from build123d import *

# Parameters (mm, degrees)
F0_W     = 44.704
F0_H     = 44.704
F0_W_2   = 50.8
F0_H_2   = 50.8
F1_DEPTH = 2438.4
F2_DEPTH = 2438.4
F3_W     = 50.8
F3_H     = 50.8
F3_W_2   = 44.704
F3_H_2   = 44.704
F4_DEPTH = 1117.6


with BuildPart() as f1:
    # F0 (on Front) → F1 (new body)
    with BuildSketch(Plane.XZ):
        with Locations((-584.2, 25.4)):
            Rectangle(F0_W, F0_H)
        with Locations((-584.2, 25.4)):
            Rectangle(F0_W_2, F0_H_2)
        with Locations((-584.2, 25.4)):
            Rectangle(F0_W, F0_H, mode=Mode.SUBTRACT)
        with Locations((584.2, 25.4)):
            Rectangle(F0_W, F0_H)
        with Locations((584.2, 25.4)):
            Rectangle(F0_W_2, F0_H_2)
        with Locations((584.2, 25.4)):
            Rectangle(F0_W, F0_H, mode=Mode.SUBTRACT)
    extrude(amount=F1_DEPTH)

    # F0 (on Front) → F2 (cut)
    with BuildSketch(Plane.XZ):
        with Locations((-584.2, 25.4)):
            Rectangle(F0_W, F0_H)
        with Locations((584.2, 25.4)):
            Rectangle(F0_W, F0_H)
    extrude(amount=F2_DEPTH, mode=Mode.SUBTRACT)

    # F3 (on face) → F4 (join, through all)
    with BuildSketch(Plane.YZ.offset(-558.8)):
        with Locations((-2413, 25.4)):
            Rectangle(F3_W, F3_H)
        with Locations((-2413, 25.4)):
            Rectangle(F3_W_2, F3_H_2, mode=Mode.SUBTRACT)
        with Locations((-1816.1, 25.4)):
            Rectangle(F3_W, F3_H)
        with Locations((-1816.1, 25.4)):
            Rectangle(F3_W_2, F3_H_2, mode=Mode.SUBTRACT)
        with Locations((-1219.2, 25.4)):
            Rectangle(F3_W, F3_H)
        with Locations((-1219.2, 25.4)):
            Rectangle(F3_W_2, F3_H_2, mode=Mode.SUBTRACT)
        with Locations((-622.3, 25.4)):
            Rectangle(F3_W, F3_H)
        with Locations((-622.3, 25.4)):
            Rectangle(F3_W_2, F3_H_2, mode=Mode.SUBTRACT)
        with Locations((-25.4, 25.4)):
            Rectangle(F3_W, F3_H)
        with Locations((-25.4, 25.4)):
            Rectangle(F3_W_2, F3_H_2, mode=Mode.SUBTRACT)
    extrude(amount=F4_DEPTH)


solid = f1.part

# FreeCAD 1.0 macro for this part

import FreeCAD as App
import Part
import Sketcher
Q = App.Units.Quantity


def add_polygon(sketch, points):
    """Adds a closed chain of lines whose ends are joined by coincident constraints."""
    first, n = sketch.GeometryCount, len(points)
    for a, b in zip(points, points[1:] + points[:1]):
        sketch.addGeometry(Part.LineSegment(App.Vector(*a, 0), App.Vector(*b, 0)), False)
    for i in range(n):
        sketch.addConstraint(Sketcher.Constraint("Coincident", first + i, 2, first + (i + 1) % n, 1))

doc = App.newDocument("Part")
body = doc.addObject("PartDesign::Body", "Body")
body.AllowCompound = True

sketch1 = doc.addObject("Sketcher::SketchObject", "Sketch")
body.addObject(sketch1)
sketch1.AttachmentSupport = (doc.XZ_Plane, [""])
sketch1.MapMode = "FlatFace"
add_polygon(sketch1, [(-610, 51), (-610, 0), (-559, 0), (-559, 51)])
add_polygon(sketch1, [(-562, 3), (-607, 3), (-607, 48), (-562, 48)])
add_polygon(sketch1, [(559, 51), (559, 0), (610, 0), (610, 51)])
add_polygon(sketch1, [(607, 3), (562, 3), (562, 48), (607, 48)])
sketch1.addConstraint([
    Sketcher.Constraint("Vertical", 0),
    Sketcher.Constraint("Horizontal", 1),
    Sketcher.Constraint("Vertical", 2),
    Sketcher.Constraint("Horizontal", 3),
    Sketcher.Constraint("Horizontal", 4),
    Sketcher.Constraint("Vertical", 5),
    Sketcher.Constraint("Horizontal", 6),
    Sketcher.Constraint("Vertical", 7),
    Sketcher.Constraint("Vertical", 8),
    Sketcher.Constraint("Horizontal", 9),
    Sketcher.Constraint("Vertical", 10),
    Sketcher.Constraint("Horizontal", 11),
    Sketcher.Constraint("Horizontal", 12),
    Sketcher.Constraint("Vertical", 13),
    Sketcher.Constraint("Horizontal", 14),
    Sketcher.Constraint("Vertical", 15),
    Sketcher.Constraint("Symmetric", 1, 2, 8, 2, -1, 1),
    Sketcher.Constraint("Symmetric", 0, 2, 9, 2, -2),
    Sketcher.Constraint("Symmetric", 7, 2, 12, 2, -2),
    Sketcher.Constraint("Symmetric", 5, 2, 14, 2, -2),
    Sketcher.Constraint("Horizontal", 3, 2, 10, 2),
    Sketcher.Constraint("Equal", 11, 0),
    Sketcher.Constraint("Equal", 14, 5),
    Sketcher.Constraint("DistanceX", 1, 1, 1, 2, Q("2 in")),
    Sketcher.Constraint("DistanceX", 0, 2, -1, 1, Q("24 in")),
    Sketcher.Constraint("DistanceX", 4, 2, 4, 1, Q("1.76 in")),
    Sketcher.Constraint("DistanceX", 4, 2, -1, 1, Q("23.88 in")),
    Sketcher.Constraint("DistanceY", -1, 1, 4, 2, Q("0.12 in")),
])
pad1 = doc.addObject("PartDesign::Pad", "Pad")
body.addObject(pad1)
pad1.Profile = sketch1
pad1.Length = Q("96 in")

sketch2 = doc.addObject("Sketcher::SketchObject", "Sketch001")
body.addObject(sketch2)
sketch2.AttachmentSupport = (doc.XZ_Plane, [""])
sketch2.MapMode = "FlatFace"
add_polygon(sketch2, [(-607, 48), (-607, 3), (-562, 3), (-562, 48)])
add_polygon(sketch2, [(562, 48), (562, 3), (607, 3), (607, 48)])
sketch2.addConstraint([
    Sketcher.Constraint("Vertical", 0),
    Sketcher.Constraint("Horizontal", 1),
    Sketcher.Constraint("Vertical", 2),
    Sketcher.Constraint("Horizontal", 3),
    Sketcher.Constraint("Vertical", 4),
    Sketcher.Constraint("Horizontal", 5),
    Sketcher.Constraint("Vertical", 6),
    Sketcher.Constraint("Horizontal", 7),
    Sketcher.Constraint("Symmetric", 1, 2, 4, 2, -2),
    Sketcher.Constraint("Symmetric", 3, 2, 6, 2, -2),
    Sketcher.Constraint("Equal", 7, 0),
    Sketcher.Constraint("DistanceX", 0, 2, 4, 2, Q("46 in")),
    Sketcher.Constraint("DistanceX", 1, 1, 1, 2, Q("1.76 in")),
    Sketcher.Constraint("DistanceY", -1, 1, 0, 2, Q("0.12 in")),
])
pocket1 = doc.addObject("PartDesign::Pocket", "Pocket")
body.addObject(pocket1)
pocket1.Profile = sketch2
pocket1.Length = Q("96 in")
pocket1.Reversed = True

sketch3 = doc.addObject("Sketcher::SketchObject", "Sketch002")
body.addObject(sketch3)
sketch3.AttachmentSupport = (doc.YZ_Plane, [""])
sketch3.MapMode = "FlatFace"
sketch3.AttachmentOffset = App.Placement(App.Vector(0, 0, -22 * 25.4), App.Rotation())
add_polygon(sketch3, [(-2438, 51), (-2438, 0), (-2388, 0), (-2388, 51)])
add_polygon(sketch3, [(-2391, 3), (-2435, 3), (-2435, 48), (-2391, 48)])
add_polygon(sketch3, [(-1842, 51), (-1842, 0), (-1791, 0), (-1791, 51)])
add_polygon(sketch3, [(-1794, 3), (-1838, 3), (-1838, 48), (-1794, 48)])
add_polygon(sketch3, [(-1245, 51), (-1245, 0), (-1194, 0), (-1194, 51)])
add_polygon(sketch3, [(-1197, 3), (-1242, 3), (-1242, 48), (-1197, 48)])
add_polygon(sketch3, [(-648, 51), (-648, 0), (-597, 0), (-597, 51)])
add_polygon(sketch3, [(-600, 3), (-645, 3), (-645, 48), (-600, 48)])
add_polygon(sketch3, [(-51, 51), (-51, 0), (0, 0), (0, 51)])
add_polygon(sketch3, [(-3, 3), (-48, 3), (-48, 48), (-3, 48)])
sketch3.addConstraint([
    Sketcher.Constraint("Vertical", 0),
    Sketcher.Constraint("Horizontal", 1),
    Sketcher.Constraint("Vertical", 2),
    Sketcher.Constraint("Horizontal", 3),
    Sketcher.Constraint("Horizontal", 4),
    Sketcher.Constraint("Vertical", 5),
    Sketcher.Constraint("Horizontal", 6),
    Sketcher.Constraint("Vertical", 7),
    Sketcher.Constraint("Vertical", 8),
    Sketcher.Constraint("Horizontal", 9),
    Sketcher.Constraint("Vertical", 10),
    Sketcher.Constraint("Horizontal", 11),
    Sketcher.Constraint("Horizontal", 12),
    Sketcher.Constraint("Vertical", 13),
    Sketcher.Constraint("Horizontal", 14),
    Sketcher.Constraint("Vertical", 15),
    Sketcher.Constraint("Vertical", 16),
    Sketcher.Constraint("Horizontal", 17),
    Sketcher.Constraint("Vertical", 18),
    Sketcher.Constraint("Horizontal", 19),
    Sketcher.Constraint("Horizontal", 20),
    Sketcher.Constraint("Vertical", 21),
    Sketcher.Constraint("Horizontal", 22),
    Sketcher.Constraint("Vertical", 23),
    Sketcher.Constraint("Vertical", 24),
    Sketcher.Constraint("Horizontal", 25),
    Sketcher.Constraint("Vertical", 26),
    Sketcher.Constraint("Horizontal", 27),
    Sketcher.Constraint("Horizontal", 28),
    Sketcher.Constraint("Vertical", 29),
    Sketcher.Constraint("Horizontal", 30),
    Sketcher.Constraint("Vertical", 31),
    Sketcher.Constraint("Vertical", 32),
    Sketcher.Constraint("Horizontal", 33),
    Sketcher.Constraint("Vertical", 34),
    Sketcher.Constraint("Horizontal", 35),
    Sketcher.Constraint("Horizontal", 36),
    Sketcher.Constraint("Vertical", 37),
    Sketcher.Constraint("Horizontal", 38),
    Sketcher.Constraint("Vertical", 39),
    Sketcher.Constraint("Coincident", 33, 2, -1, 1),
    Sketcher.Constraint("PointOnObject", 0, 2, -1),
    Sketcher.Constraint("PointOnObject", 8, 2, -1),
    Sketcher.Constraint("PointOnObject", 16, 2, -1),
    Sketcher.Constraint("PointOnObject", 24, 2, -1),
    Sketcher.Constraint("Horizontal", 3, 2, 10, 2),
    Sketcher.Constraint("Horizontal", 7, 2, 12, 2),
    Sketcher.Constraint("Horizontal", 6, 2, 13, 2),
    Sketcher.Constraint("Horizontal", 11, 2, 18, 2),
    Sketcher.Constraint("Horizontal", 15, 2, 20, 2),
    Sketcher.Constraint("Horizontal", 14, 2, 21, 2),
    Sketcher.Constraint("Horizontal", 19, 2, 26, 2),
    Sketcher.Constraint("Horizontal", 23, 2, 28, 2),
    Sketcher.Constraint("Horizontal", 22, 2, 29, 2),
    Sketcher.Constraint("Horizontal", 27, 2, 34, 2),
    Sketcher.Constraint("Horizontal", 31, 2, 36, 2),
    Sketcher.Constraint("Horizontal", 30, 2, 37, 2),
    Sketcher.Constraint("Equal", 3, 9),
    Sketcher.Constraint("Equal", 6, 12),
    Sketcher.Constraint("Equal", 11, 17),
    Sketcher.Constraint("Equal", 14, 20),
    Sketcher.Constraint("Equal", 19, 25),
    Sketcher.Constraint("Equal", 22, 28),
    Sketcher.Constraint("Equal", 27, 33),
    Sketcher.Constraint("Equal", 30, 36),
    Sketcher.Constraint("Equal", 35, 0),
    Sketcher.Constraint("Equal", 38, 5),
    Sketcher.Constraint("DistanceX", 1, 1, 1, 2, Q("2 in")),
    Sketcher.Constraint("DistanceX", 0, 2, -1, 1, Q("96 in")),
    Sketcher.Constraint("DistanceX", 16, 2, -1, 1, Q("49 in")),
    Sketcher.Constraint("DistanceX", 4, 2, 4, 1, Q("1.76 in")),
    Sketcher.Constraint("DistanceX", 8, 2, -1, 1, Q("72.5 in")),
    Sketcher.Constraint("DistanceX", 24, 2, -1, 1, Q("25.5 in")),
    Sketcher.Constraint("DistanceX", 4, 2, -1, 1, Q("95.88 in")),
    Sketcher.Constraint("DistanceY", -1, 1, 4, 2, Q("0.12 in")),
    Sketcher.Constraint("DistanceX", 12, 2, -1, 1, Q("72.38 in")),
    Sketcher.Constraint("DistanceX", 20, 2, -1, 1, Q("48.88 in")),
    Sketcher.Constraint("DistanceX", 28, 2, -1, 1, Q("25.38 in")),
    Sketcher.Constraint("DistanceX", 36, 2, -1, 1, Q("1.88 in")),
])
pad2 = doc.addObject("PartDesign::Pad", "Pad001")
body.addObject(pad2)
pad2.Profile = sketch3
pad2.Length = Q("44 in")

doc.recompute()
